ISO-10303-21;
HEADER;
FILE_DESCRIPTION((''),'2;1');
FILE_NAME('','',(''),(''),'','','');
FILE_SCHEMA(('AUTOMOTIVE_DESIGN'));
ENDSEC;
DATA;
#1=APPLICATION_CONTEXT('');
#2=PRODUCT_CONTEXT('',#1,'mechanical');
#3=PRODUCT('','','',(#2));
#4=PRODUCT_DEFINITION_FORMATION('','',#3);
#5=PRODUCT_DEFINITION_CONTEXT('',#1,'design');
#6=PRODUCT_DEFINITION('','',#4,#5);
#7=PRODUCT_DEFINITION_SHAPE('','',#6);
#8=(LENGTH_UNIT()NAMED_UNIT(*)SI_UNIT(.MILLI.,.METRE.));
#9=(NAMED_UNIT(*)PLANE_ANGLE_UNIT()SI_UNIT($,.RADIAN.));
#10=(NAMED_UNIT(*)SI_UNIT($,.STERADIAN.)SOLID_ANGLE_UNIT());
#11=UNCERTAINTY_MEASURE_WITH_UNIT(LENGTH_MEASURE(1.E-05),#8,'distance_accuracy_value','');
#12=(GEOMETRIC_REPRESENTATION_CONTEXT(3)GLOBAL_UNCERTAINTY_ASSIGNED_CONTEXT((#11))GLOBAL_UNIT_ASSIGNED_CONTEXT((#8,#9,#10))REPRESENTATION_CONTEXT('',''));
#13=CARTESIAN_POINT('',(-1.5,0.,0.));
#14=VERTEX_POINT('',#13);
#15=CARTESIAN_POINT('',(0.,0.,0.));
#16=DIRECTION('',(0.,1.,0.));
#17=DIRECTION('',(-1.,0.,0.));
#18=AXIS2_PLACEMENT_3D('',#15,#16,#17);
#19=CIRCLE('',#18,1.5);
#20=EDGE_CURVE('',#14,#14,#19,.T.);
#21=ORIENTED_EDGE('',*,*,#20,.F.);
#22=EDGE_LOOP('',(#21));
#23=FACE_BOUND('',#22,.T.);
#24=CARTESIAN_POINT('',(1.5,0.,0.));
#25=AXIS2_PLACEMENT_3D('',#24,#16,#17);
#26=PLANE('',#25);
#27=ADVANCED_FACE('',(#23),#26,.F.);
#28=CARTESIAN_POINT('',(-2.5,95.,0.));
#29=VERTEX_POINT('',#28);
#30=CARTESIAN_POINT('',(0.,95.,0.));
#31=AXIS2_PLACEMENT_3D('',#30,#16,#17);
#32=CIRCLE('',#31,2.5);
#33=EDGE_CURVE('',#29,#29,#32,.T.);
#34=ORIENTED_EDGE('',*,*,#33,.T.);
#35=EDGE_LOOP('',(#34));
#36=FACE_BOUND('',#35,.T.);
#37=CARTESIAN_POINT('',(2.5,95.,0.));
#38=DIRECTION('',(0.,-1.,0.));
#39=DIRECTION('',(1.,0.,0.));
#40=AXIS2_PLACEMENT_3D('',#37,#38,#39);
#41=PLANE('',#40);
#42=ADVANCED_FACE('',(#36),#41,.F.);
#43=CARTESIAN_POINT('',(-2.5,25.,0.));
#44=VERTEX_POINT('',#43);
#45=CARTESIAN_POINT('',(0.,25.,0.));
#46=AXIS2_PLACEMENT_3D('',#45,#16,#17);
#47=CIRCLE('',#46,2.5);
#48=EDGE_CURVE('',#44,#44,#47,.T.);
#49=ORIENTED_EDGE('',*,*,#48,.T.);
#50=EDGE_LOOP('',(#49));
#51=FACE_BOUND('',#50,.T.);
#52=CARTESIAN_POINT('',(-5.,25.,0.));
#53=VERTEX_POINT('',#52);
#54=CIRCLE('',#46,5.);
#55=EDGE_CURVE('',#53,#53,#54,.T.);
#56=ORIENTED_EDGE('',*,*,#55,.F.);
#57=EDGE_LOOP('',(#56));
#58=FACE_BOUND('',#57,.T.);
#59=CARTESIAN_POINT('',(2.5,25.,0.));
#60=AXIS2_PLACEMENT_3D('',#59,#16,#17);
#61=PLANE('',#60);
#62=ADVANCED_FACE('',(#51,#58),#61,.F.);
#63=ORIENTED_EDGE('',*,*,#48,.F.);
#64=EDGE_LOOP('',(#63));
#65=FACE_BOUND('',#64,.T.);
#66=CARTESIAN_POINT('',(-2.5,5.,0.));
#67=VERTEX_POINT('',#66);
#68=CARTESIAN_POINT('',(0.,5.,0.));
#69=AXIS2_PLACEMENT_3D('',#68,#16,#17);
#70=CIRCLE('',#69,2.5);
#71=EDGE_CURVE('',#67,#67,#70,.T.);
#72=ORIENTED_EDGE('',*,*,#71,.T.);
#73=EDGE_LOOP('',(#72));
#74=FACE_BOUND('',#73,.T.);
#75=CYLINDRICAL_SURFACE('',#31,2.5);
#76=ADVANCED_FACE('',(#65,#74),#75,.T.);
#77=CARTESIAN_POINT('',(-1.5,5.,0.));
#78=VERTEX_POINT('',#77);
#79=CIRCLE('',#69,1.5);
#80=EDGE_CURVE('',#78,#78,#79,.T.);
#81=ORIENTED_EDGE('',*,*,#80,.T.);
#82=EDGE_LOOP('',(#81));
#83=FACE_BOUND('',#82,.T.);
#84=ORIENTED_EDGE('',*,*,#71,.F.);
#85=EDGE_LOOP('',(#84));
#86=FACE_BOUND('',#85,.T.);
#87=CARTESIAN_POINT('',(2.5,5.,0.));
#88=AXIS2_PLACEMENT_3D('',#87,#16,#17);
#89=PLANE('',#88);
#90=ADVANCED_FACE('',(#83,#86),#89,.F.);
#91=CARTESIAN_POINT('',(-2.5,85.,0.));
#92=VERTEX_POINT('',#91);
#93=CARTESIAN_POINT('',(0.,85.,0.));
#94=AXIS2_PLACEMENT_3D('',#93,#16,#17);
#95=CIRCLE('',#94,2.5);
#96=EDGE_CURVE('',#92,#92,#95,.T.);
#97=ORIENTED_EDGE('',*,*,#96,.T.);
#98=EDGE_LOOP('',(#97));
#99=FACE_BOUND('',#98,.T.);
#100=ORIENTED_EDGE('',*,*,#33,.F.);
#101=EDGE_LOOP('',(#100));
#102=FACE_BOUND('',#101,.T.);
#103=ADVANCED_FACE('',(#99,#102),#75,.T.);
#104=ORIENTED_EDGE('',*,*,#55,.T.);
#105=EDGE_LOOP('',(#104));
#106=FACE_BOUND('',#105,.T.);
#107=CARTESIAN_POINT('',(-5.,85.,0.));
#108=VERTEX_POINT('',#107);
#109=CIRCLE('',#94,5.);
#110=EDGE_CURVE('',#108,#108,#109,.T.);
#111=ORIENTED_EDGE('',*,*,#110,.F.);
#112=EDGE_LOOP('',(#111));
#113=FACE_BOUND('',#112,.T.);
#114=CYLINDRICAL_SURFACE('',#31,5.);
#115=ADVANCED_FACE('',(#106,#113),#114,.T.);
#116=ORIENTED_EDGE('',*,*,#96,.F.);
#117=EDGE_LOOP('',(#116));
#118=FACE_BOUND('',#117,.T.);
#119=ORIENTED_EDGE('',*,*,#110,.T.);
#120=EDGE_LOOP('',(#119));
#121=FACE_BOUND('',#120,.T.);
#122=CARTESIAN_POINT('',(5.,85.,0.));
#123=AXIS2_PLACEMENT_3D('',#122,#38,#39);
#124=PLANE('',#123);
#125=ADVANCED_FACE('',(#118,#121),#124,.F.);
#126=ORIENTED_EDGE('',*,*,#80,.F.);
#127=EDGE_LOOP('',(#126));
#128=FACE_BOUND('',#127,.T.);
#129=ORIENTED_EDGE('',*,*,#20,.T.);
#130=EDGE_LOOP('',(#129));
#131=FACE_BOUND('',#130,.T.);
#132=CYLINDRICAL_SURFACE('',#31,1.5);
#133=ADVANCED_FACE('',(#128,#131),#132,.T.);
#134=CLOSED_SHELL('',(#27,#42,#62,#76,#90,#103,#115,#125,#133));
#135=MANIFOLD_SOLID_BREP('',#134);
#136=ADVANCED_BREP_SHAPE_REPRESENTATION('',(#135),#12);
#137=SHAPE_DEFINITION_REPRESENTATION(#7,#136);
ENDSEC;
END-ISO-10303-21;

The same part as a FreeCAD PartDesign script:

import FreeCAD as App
import Part
import Sketcher
from FreeCAD import Vector
Q = App.Units.Quantity

doc = App.newDocument("Part")
body = doc.addObject("PartDesign::Body", "Body")

sketch1 = doc.addObject("Sketcher::SketchObject", "Sketch")
body.addObject(sketch1)
sketch1.AttachmentSupport = (doc.XY_Plane, [""])
sketch1.MapMode = "FlatFace"
sketch1.addGeometry(Part.LineSegment(Vector(1.5, 5, 0), Vector(2.5, 5, 0)), False)
sketch1.addGeometry(Part.LineSegment(Vector(2.5, 5, 0), Vector(2.5, 25, 0)), False)
sketch1.addGeometry(Part.LineSegment(Vector(2.5, 25, 0), Vector(5, 25, 0)), False)
sketch1.addGeometry(Part.LineSegment(Vector(5, 25, 0), Vector(5, 85, 0)), False)
sketch1.addGeometry(Part.LineSegment(Vector(5, 85, 0), Vector(2.5, 85, 0)), False)
sketch1.addGeometry(Part.LineSegment(Vector(2.5, 85, 0), Vector(2.5, 95, 0)), False)
sketch1.addGeometry(Part.LineSegment(Vector(2.5, 95, 0), Vector(0, 95, 0)), False)
sketch1.addGeometry(Part.LineSegment(Vector(0, 95, 0), Vector(0, 0, 0)), False)
sketch1.addGeometry(Part.LineSegment(Vector(0, 0, 0), Vector(1.5, 0, 0)), False)
sketch1.addGeometry(Part.LineSegment(Vector(1.5, 0, 0), Vector(1.5, 5, 0)), False)
sketch1.addConstraint(Sketcher.Constraint("Coincident", 0, 2, 1, 1))
sketch1.addConstraint(Sketcher.Constraint("Coincident", 1, 2, 2, 1))
sketch1.addConstraint(Sketcher.Constraint("Coincident", 2, 2, 3, 1))
sketch1.addConstraint(Sketcher.Constraint("Coincident", 3, 2, 4, 1))
sketch1.addConstraint(Sketcher.Constraint("Coincident", 4, 2, 5, 1))
sketch1.addConstraint(Sketcher.Constraint("Coincident", 5, 2, 6, 1))
sketch1.addConstraint(Sketcher.Constraint("Coincident", 6, 2, 7, 1))
sketch1.addConstraint(Sketcher.Constraint("Coincident", 7, 2, 8, 1))
sketch1.addConstraint(Sketcher.Constraint("Coincident", 8, 2, 9, 1))
sketch1.addConstraint(Sketcher.Constraint("Coincident", 9, 2, 0, 1))
sketch1.addConstraint(Sketcher.Constraint("Horizontal", 0))
sketch1.addConstraint(Sketcher.Constraint("Vertical", 1))
sketch1.addConstraint(Sketcher.Constraint("Horizontal", 2))
sketch1.addConstraint(Sketcher.Constraint("Vertical", 3))
sketch1.addConstraint(Sketcher.Constraint("Horizontal", 4))
sketch1.addConstraint(Sketcher.Constraint("Vertical", 5))
sketch1.addConstraint(Sketcher.Constraint("Horizontal", 6))
sketch1.addConstraint(Sketcher.Constraint("Vertical", 7))
sketch1.addConstraint(Sketcher.Constraint("Horizontal", 8))
sketch1.addConstraint(Sketcher.Constraint("Vertical", 9))
sketch1.addConstraint(Sketcher.Constraint("Coincident", 7, 2, -1, 1))
sketch1.addConstraint(Sketcher.Constraint("Vertical", 1, 2, 4, 2))
sketch1.addConstraint(Sketcher.Constraint("Equal", 4, 6))
sketch1.addConstraint(Sketcher.Constraint("DistanceX", 0, 1, 0, 2, Q("1 mm")))
sketch1.addConstraint(Sketcher.Constraint("DistanceY", 1, 1, 1, 2, Q("20 mm")))
sketch1.addConstraint(Sketcher.Constraint("DistanceY", 3, 1, 3, 2, Q("60 mm")))
sketch1.addConstraint(Sketcher.Constraint("DistanceY", 5, 1, 5, 2, Q("10 mm")))
sketch1.addConstraint(Sketcher.Constraint("DistanceY", 7, 2, 7, 1, Q("95 mm")))
sketch1.addConstraint(Sketcher.Constraint("DistanceX", 2, 1, 2, 2, Q("2.5 mm")))
revolution = doc.addObject("PartDesign::Revolution", "Revolution")
body.addObject(revolution)
revolution.Profile = sketch1
revolution.ReferenceAxis = (sketch1, ["V_Axis"])
revolution.Angle = 360

doc.recompute()
